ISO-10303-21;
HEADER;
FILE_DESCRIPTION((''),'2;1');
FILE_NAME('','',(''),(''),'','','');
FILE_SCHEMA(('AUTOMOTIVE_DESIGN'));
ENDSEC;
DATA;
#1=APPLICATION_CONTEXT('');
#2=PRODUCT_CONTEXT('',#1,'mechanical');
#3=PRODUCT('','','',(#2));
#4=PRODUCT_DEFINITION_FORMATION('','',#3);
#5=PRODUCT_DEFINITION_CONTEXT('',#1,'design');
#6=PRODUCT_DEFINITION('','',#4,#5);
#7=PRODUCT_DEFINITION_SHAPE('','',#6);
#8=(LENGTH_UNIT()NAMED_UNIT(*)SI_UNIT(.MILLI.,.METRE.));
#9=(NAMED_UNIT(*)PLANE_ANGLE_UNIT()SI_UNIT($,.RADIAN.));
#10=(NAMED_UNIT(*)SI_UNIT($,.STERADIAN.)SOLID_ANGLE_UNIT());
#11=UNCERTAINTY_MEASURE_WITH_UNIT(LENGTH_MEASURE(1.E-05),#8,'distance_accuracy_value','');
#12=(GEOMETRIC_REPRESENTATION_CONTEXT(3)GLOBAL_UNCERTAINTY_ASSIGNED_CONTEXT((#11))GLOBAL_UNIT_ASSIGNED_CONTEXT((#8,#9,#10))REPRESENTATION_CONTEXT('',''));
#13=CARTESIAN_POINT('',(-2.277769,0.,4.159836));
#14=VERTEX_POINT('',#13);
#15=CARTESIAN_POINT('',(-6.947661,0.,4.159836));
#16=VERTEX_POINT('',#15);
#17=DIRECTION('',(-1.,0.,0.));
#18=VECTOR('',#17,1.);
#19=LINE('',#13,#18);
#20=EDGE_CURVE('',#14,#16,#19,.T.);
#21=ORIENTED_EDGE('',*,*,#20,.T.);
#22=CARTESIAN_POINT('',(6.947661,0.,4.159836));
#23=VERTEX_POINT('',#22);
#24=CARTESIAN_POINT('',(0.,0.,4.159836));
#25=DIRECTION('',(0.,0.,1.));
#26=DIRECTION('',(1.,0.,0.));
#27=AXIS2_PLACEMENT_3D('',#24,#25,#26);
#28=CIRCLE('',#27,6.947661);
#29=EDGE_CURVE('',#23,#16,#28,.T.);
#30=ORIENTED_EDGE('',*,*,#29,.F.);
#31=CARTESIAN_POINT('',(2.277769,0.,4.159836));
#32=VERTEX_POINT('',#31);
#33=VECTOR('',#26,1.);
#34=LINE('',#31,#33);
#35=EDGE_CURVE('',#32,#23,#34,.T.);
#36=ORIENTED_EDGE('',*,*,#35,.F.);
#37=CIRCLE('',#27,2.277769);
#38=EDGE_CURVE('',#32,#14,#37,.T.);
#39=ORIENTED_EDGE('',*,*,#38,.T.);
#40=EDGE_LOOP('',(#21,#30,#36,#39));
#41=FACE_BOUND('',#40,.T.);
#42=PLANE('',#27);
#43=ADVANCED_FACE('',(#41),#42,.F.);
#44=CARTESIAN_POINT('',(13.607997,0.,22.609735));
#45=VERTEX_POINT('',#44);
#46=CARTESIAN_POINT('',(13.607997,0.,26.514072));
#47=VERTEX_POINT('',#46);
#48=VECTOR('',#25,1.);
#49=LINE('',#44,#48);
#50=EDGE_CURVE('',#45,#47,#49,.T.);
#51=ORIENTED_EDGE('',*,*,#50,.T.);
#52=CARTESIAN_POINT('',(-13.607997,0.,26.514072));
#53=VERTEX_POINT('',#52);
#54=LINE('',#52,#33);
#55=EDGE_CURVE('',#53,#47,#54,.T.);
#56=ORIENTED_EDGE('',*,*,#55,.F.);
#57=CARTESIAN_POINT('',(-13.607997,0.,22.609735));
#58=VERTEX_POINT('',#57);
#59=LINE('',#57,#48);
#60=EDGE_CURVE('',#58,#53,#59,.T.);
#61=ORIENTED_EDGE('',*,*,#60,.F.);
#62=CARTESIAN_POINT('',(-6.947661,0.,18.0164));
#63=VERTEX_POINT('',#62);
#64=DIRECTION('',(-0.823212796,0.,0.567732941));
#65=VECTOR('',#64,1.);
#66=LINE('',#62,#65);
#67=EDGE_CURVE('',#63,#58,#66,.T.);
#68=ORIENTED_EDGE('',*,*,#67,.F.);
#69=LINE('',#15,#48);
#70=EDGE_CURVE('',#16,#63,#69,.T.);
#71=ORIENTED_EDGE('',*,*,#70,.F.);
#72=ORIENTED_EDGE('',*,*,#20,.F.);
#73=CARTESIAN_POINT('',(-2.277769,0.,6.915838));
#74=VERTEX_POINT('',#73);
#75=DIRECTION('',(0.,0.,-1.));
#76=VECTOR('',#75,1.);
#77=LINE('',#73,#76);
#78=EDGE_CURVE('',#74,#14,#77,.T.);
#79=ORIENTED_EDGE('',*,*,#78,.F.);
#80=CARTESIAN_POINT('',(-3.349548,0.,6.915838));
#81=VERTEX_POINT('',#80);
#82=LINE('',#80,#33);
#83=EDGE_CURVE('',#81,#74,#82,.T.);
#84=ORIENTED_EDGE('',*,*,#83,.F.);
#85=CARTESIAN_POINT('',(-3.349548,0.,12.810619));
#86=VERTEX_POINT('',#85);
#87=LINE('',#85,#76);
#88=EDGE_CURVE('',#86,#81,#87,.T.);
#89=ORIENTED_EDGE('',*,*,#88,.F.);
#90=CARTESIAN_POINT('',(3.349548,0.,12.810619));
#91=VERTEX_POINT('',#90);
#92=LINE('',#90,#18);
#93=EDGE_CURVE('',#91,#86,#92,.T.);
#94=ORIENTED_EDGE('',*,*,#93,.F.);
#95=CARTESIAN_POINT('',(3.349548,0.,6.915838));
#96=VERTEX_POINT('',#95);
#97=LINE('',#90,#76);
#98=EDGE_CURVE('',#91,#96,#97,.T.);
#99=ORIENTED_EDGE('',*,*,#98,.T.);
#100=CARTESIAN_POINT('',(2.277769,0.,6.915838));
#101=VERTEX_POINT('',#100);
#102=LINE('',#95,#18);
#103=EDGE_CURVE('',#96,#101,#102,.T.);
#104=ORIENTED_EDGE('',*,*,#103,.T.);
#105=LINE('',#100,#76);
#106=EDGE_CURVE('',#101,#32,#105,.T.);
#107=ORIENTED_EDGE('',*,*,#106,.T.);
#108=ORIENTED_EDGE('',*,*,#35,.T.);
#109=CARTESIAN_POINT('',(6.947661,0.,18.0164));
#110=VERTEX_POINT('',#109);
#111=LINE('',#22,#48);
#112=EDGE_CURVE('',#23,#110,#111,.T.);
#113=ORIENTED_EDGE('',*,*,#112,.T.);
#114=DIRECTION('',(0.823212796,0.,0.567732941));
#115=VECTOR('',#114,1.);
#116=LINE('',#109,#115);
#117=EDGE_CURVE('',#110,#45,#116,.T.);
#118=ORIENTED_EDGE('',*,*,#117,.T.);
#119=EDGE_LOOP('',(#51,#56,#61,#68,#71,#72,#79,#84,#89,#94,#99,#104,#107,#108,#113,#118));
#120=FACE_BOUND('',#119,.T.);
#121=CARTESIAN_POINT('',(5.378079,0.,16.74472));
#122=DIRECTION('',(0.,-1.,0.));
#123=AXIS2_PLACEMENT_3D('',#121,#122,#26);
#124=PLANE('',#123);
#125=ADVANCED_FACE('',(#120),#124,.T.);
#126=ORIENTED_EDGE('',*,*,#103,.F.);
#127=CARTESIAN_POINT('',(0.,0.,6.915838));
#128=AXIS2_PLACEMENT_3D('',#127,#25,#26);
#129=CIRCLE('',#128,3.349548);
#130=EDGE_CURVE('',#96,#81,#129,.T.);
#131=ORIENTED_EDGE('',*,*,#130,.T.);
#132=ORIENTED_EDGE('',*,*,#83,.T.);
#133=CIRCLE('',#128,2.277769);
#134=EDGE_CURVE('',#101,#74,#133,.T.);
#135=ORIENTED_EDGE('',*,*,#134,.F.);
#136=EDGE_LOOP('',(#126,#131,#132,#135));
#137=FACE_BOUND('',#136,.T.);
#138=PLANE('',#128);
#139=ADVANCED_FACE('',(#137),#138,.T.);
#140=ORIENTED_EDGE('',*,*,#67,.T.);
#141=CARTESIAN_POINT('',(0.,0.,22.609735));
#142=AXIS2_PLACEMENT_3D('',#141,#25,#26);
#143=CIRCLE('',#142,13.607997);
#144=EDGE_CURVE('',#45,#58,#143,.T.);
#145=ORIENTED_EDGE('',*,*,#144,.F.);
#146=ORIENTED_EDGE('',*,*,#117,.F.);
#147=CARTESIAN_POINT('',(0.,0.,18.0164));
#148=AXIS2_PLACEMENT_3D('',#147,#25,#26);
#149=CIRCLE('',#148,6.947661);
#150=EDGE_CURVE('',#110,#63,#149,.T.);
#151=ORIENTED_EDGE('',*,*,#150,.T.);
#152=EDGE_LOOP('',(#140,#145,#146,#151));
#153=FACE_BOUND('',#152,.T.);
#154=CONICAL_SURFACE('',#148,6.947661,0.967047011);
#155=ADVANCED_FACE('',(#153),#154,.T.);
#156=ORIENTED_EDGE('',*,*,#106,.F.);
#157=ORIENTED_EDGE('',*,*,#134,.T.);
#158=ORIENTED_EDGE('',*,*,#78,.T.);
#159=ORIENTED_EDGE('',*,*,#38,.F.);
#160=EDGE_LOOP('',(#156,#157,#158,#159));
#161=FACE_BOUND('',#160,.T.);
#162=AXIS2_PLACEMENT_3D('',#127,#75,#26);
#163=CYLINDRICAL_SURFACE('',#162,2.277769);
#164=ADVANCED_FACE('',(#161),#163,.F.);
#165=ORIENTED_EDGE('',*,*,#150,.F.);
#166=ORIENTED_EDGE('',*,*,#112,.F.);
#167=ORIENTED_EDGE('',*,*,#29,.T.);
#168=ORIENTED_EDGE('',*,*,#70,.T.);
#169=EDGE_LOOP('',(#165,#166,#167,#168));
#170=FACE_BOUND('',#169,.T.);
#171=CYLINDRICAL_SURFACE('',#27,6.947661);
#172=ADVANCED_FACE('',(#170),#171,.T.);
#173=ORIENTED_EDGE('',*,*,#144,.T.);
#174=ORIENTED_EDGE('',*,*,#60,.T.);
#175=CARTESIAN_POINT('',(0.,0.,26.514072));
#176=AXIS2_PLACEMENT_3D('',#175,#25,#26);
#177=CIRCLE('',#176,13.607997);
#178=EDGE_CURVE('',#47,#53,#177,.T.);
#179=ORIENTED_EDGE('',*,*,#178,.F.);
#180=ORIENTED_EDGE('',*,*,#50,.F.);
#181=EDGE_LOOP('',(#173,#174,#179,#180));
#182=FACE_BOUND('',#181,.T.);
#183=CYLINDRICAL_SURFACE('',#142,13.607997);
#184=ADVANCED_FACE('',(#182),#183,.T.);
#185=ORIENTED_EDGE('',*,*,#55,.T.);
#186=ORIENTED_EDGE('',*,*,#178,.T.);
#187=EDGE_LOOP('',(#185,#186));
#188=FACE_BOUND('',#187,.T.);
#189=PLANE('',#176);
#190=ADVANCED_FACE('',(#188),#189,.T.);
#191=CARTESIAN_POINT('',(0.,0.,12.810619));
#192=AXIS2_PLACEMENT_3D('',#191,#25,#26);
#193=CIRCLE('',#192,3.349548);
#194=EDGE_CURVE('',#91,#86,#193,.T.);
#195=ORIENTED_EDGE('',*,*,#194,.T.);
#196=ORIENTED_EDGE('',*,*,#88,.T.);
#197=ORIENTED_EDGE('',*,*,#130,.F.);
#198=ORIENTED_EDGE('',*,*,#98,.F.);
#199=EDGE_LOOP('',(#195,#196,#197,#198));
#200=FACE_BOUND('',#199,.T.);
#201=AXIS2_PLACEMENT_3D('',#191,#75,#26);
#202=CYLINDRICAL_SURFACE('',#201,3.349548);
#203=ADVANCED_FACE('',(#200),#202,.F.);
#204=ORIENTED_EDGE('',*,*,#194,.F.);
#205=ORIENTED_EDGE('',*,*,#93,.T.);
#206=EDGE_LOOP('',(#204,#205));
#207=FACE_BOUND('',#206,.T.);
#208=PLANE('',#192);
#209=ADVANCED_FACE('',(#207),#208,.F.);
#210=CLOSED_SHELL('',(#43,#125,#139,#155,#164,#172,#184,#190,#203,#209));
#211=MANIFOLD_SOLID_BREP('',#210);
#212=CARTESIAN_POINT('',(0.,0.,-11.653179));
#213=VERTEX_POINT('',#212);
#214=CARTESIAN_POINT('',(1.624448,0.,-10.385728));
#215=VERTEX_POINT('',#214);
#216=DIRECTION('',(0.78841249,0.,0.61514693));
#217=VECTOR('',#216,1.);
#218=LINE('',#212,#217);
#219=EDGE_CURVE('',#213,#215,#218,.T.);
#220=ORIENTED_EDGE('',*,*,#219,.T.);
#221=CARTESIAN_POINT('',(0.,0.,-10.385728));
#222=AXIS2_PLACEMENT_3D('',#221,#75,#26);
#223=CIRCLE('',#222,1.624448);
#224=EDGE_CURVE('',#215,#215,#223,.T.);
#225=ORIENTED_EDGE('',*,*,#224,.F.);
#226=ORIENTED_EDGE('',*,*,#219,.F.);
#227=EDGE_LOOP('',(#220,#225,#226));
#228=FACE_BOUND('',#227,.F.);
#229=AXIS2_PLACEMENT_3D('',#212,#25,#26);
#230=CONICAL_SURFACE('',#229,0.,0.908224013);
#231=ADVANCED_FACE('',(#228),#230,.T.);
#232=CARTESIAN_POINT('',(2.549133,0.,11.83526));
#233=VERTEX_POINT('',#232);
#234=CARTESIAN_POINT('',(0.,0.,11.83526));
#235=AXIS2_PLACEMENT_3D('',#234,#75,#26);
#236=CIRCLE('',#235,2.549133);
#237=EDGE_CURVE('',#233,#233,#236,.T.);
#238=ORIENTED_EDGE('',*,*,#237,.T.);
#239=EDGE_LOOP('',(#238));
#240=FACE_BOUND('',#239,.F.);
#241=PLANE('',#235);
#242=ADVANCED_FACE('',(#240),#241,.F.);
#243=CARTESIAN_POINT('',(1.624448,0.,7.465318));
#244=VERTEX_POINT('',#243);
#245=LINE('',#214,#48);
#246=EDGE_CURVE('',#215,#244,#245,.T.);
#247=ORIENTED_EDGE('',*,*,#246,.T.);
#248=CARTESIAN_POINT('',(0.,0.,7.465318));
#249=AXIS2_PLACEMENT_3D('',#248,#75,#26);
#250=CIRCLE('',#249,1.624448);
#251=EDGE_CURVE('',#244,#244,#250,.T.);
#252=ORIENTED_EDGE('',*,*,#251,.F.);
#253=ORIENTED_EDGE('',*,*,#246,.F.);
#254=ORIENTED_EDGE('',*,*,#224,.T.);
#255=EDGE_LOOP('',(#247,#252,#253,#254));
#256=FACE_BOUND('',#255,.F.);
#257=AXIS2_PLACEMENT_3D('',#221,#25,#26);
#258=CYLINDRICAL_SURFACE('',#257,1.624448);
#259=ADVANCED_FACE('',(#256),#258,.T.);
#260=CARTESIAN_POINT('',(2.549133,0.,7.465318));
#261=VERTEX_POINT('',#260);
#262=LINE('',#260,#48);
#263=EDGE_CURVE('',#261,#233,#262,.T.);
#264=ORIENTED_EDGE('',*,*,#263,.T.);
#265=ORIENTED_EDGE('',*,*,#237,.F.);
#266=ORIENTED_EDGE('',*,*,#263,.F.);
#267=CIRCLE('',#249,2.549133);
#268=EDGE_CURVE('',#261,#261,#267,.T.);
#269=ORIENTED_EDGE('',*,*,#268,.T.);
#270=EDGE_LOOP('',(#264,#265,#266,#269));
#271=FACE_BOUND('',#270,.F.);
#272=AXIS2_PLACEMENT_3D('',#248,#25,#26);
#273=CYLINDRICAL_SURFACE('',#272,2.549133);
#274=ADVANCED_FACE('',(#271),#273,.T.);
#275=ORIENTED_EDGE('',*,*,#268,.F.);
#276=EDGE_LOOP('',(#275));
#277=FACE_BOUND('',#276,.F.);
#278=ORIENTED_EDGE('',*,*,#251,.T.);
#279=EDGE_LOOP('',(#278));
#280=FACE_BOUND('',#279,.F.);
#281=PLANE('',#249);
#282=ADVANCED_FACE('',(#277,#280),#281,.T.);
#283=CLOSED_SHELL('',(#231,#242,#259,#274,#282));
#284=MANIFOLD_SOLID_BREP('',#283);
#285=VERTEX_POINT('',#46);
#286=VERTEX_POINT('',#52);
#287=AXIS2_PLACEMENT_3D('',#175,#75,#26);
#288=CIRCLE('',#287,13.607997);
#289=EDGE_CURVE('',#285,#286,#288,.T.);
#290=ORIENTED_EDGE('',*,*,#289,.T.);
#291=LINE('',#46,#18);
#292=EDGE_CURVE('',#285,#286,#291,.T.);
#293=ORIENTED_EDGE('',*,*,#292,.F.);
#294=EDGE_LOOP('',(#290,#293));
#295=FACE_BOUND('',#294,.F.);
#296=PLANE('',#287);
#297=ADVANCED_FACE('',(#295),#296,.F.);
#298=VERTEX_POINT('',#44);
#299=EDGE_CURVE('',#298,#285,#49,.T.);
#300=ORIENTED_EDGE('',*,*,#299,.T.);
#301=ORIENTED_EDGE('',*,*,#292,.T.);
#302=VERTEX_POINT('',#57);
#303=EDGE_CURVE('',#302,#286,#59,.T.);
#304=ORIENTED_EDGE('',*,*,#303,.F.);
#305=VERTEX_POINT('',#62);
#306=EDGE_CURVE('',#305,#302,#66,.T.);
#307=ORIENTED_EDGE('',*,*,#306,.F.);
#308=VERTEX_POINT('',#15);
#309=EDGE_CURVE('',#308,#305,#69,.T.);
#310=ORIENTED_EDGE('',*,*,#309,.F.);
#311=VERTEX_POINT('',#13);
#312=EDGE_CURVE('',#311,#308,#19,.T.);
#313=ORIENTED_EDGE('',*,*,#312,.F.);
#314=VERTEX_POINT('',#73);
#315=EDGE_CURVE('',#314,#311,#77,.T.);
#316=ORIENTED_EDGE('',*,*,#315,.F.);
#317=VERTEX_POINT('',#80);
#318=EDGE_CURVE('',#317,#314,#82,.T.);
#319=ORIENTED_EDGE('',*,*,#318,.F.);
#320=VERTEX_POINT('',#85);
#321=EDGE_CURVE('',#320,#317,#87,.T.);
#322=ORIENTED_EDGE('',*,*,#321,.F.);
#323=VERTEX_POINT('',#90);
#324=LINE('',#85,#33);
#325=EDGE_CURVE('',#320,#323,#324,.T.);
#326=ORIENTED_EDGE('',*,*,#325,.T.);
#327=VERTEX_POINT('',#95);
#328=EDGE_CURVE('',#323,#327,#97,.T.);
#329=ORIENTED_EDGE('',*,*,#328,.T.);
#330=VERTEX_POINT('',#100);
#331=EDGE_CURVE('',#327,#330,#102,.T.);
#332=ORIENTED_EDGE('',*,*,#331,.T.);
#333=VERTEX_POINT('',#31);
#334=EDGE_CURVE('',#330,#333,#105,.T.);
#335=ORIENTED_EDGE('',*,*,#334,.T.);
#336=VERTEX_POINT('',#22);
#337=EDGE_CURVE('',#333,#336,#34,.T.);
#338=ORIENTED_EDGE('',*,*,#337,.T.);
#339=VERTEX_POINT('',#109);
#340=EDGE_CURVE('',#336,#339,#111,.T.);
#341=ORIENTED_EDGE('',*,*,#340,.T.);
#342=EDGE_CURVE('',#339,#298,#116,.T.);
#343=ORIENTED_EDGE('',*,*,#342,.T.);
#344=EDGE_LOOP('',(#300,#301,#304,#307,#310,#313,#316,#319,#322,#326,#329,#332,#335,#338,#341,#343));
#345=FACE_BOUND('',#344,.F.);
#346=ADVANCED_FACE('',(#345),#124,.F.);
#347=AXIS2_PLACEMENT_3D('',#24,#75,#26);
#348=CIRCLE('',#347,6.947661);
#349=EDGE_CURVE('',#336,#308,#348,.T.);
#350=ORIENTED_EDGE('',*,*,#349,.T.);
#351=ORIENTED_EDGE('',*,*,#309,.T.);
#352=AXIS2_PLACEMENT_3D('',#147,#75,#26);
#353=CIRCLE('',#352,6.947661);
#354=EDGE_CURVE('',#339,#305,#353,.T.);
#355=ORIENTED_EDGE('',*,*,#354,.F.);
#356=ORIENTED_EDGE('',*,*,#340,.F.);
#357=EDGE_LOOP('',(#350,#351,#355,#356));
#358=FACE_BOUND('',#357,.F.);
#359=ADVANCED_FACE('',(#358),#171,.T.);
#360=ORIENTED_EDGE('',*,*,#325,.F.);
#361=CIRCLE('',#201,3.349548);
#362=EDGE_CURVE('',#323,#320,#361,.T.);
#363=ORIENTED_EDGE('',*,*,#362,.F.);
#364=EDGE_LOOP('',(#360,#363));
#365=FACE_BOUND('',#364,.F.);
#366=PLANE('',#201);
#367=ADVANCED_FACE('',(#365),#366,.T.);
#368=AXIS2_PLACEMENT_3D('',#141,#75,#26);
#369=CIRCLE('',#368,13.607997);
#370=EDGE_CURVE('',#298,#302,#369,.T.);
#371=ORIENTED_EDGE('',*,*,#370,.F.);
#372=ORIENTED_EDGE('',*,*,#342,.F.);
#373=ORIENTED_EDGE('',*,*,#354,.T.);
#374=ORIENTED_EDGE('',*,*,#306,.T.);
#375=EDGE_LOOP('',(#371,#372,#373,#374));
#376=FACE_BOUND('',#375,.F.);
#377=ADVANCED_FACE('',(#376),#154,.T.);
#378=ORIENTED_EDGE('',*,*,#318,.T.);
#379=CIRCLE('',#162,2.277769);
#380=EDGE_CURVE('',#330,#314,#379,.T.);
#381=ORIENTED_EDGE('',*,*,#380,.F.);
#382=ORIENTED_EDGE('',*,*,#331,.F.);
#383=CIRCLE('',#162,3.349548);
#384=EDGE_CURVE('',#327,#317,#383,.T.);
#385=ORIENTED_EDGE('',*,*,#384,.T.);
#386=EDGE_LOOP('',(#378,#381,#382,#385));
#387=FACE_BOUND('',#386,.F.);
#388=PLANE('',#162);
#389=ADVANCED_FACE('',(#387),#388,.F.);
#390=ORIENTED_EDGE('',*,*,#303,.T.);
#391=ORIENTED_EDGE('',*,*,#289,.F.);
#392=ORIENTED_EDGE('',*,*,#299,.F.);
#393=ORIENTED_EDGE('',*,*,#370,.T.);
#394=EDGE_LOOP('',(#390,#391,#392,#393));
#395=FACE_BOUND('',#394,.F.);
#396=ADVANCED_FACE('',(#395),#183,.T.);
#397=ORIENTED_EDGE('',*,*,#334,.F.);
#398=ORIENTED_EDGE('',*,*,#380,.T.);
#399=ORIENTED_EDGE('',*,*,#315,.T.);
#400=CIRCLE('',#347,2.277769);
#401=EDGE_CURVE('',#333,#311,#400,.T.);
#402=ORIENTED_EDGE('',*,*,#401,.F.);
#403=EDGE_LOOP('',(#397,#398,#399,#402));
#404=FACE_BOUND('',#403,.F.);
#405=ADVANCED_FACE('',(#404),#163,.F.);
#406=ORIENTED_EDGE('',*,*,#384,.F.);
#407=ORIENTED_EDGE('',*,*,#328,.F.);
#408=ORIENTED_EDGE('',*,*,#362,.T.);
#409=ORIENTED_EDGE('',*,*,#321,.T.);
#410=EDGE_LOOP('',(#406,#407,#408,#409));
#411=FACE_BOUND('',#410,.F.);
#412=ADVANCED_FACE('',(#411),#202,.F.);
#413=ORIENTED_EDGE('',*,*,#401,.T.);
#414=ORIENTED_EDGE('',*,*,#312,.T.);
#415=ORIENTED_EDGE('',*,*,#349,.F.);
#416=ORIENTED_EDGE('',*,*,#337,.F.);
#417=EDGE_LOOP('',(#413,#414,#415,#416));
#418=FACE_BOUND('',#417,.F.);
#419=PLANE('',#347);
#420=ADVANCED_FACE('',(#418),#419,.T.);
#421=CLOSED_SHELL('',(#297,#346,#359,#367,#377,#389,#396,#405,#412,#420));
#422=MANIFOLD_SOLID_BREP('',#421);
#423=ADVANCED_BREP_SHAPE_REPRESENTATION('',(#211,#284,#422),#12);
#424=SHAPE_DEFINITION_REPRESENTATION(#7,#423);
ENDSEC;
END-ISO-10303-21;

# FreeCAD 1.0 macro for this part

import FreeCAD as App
import Part
import Sketcher

V = App.Vector
Q = App.Units.Quantity


def add_polygon(sketch, points):
    """Adds a closed chain of lines whose ends are joined by coincident constraints."""
    first, n = sketch.GeometryCount, len(points)
    for a, b in zip(points, points[1:] + points[:1]):
        sketch.addGeometry(Part.LineSegment(App.Vector(*a, 0), App.Vector(*b, 0)), False)
    for i in range(n):
        sketch.addConstraint(Sketcher.Constraint("Coincident", first + i, 2, first + (i + 1) % n, 1))

doc = App.newDocument("Part")
body = doc.addObject("PartDesign::Body", "Body")

sketch1 = body.newObject("Sketcher::SketchObject", "Sketch")
sketch1.AttachmentSupport = (doc.getObject("XZ_Plane"), [""])
sketch1.MapMode = "FlatFace"
add_polygon(sketch1, [(0, 11.8), (0, -11.7), (1.6, -10.4), (1.6, 7.5), (2.5, 7.5), (2.5, 11.8)])
sketch1.addConstraint([
    Sketcher.Constraint("Vertical", 0),
    Sketcher.Constraint("Vertical", 2),
    Sketcher.Constraint("Horizontal", 3),
    Sketcher.Constraint("Vertical", 4),
    Sketcher.Constraint("Horizontal", 5),
    Sketcher.Constraint("PointOnObject", 0, 2, -2),
    Sketcher.Constraint("DistanceY", 0, 2, 0, 1, Q("23.488439 mm")),
    Sketcher.Constraint("DistanceX", 3, 1, 3, 2, Q("0.924685 mm")),
    Sketcher.Constraint("DistanceX", 5, 2, 5, 1, Q("2.549133 mm")),
    Sketcher.Constraint("DistanceY", 2, 1, 2, 2, Q("17.851046 mm")),
    Sketcher.Constraint("DistanceY", 4, 1, 4, 2, Q("4.369942 mm")),
    Sketcher.Constraint("DistanceY", 0, 2, -1, 1, Q("11.653179 mm")),
])
revolution = body.newObject("PartDesign::Revolution", "Revolution")
revolution.Profile = sketch1
revolution.ReferenceAxis = (sketch1, ["V_Axis"])
revolution.Angle = 360
body2 = doc.addObject("PartDesign::Body", "Body001")

sketch2 = body2.newObject("Sketcher::SketchObject", "Sketch001")
sketch2.AttachmentSupport = (doc.getObject("XZ_Plane001"), [""])
sketch2.MapMode = "FlatFace"
add_polygon(sketch2, [(13.6, 26.5), (0, 26.5), (0, 12.8), (3.3, 12.8), (3.3, 6.9), (2.3, 6.9), (2.3, 4.2), (6.9, 4.2), (6.9, 18), (13.6, 22.6)])
sketch2.addConstraint([
    Sketcher.Constraint("Horizontal", 0),
    Sketcher.Constraint("Vertical", 1),
    Sketcher.Constraint("Horizontal", 2),
    Sketcher.Constraint("Vertical", 3),
    Sketcher.Constraint("Horizontal", 4),
    Sketcher.Constraint("Vertical", 5),
    Sketcher.Constraint("Horizontal", 6),
    Sketcher.Constraint("Vertical", 7),
    Sketcher.Constraint("Vertical", 9),
    Sketcher.Constraint("PointOnObject", 0, 2, -2),
    Sketcher.Constraint("DistanceY", 5, 2, 5, 1, Q("2.756002 mm")),
    Sketcher.Constraint("DistanceX", 2, 1, 2, 2, Q("3.349548 mm")),
    Sketcher.Constraint("DistanceX", 4, 2, 4, 1, Q("1.071779 mm")),
    Sketcher.Constraint("DistanceY", 3, 2, 3, 1, Q("5.894781 mm")),
    Sketcher.Constraint("DistanceY", -1, 1, 7, 2, Q("18.0164 mm")),
    Sketcher.Constraint("Distance", 8, Q("8.090661 mm")),
    Sketcher.Constraint("DistanceX", 0, 2, 0, 1, Q("13.607997 mm")),
    Sketcher.Constraint("DistanceX", 6, 1, 6, 2, Q("4.669892 mm")),
    Sketcher.Constraint("DistanceY", 1, 2, 1, 1, Q("13.703453 mm")),
    Sketcher.Constraint("DistanceY", 7, 1, 7, 2, Q("13.856564 mm")),
])
revolution2 = body2.newObject("PartDesign::Revolution", "Revolution001")
revolution2.Profile = sketch2
revolution2.ReferenceAxis = (sketch2, ["V_Axis"])
revolution2.Angle = 180
revolution2.Reversed = True
body3 = doc.addObject("PartDesign::Body", "Body002")

sketch3 = body3.newObject("Sketcher::SketchObject", "Sketch002")
sketch3.AttachmentSupport = (doc.getObject("XZ_Plane002"), [""])
sketch3.MapMode = "FlatFace"
add_polygon(sketch3, [(13.6, 26.5), (0, 26.5), (0, 12.8), (3.3, 12.8), (3.3, 6.9), (2.3, 6.9), (2.3, 4.2), (6.9, 4.2), (6.9, 18), (13.6, 22.6)])
sketch3.addConstraint([
    Sketcher.Constraint("Horizontal", 0),
    Sketcher.Constraint("Vertical", 1),
    Sketcher.Constraint("Horizontal", 2),
    Sketcher.Constraint("Vertical", 3),
    Sketcher.Constraint("Horizontal", 4),
    Sketcher.Constraint("Vertical", 5),
    Sketcher.Constraint("Horizontal", 6),
    Sketcher.Constraint("Vertical", 7),
    Sketcher.Constraint("Vertical", 9),
    Sketcher.Constraint("PointOnObject", 0, 2, -2),
    Sketcher.Constraint("DistanceY", 5, 2, 5, 1, Q("2.756002 mm")),
    Sketcher.Constraint("DistanceX", 2, 1, 2, 2, Q("3.349548 mm")),
    Sketcher.Constraint("DistanceX", 4, 2, 4, 1, Q("1.071779 mm")),
    Sketcher.Constraint("DistanceY", 3, 2, 3, 1, Q("5.894781 mm")),
    Sketcher.Constraint("DistanceY", -1, 1, 7, 2, Q("18.0164 mm")),
    Sketcher.Constraint("Distance", 8, Q("8.090661 mm")),
    Sketcher.Constraint("DistanceX", 0, 2, 0, 1, Q("13.607997 mm")),
    Sketcher.Constraint("DistanceX", 6, 1, 6, 2, Q("4.669892 mm")),
    Sketcher.Constraint("DistanceY", 1, 2, 1, 1, Q("13.703453 mm")),
    Sketcher.Constraint("DistanceY", 7, 1, 7, 2, Q("13.856564 mm")),
])
revolution3 = body3.newObject("PartDesign::Revolution", "Revolution002")
revolution3.Profile = sketch3
revolution3.ReferenceAxis = (sketch3, ["V_Axis"])
revolution3.Angle = 180

doc.recompute()
